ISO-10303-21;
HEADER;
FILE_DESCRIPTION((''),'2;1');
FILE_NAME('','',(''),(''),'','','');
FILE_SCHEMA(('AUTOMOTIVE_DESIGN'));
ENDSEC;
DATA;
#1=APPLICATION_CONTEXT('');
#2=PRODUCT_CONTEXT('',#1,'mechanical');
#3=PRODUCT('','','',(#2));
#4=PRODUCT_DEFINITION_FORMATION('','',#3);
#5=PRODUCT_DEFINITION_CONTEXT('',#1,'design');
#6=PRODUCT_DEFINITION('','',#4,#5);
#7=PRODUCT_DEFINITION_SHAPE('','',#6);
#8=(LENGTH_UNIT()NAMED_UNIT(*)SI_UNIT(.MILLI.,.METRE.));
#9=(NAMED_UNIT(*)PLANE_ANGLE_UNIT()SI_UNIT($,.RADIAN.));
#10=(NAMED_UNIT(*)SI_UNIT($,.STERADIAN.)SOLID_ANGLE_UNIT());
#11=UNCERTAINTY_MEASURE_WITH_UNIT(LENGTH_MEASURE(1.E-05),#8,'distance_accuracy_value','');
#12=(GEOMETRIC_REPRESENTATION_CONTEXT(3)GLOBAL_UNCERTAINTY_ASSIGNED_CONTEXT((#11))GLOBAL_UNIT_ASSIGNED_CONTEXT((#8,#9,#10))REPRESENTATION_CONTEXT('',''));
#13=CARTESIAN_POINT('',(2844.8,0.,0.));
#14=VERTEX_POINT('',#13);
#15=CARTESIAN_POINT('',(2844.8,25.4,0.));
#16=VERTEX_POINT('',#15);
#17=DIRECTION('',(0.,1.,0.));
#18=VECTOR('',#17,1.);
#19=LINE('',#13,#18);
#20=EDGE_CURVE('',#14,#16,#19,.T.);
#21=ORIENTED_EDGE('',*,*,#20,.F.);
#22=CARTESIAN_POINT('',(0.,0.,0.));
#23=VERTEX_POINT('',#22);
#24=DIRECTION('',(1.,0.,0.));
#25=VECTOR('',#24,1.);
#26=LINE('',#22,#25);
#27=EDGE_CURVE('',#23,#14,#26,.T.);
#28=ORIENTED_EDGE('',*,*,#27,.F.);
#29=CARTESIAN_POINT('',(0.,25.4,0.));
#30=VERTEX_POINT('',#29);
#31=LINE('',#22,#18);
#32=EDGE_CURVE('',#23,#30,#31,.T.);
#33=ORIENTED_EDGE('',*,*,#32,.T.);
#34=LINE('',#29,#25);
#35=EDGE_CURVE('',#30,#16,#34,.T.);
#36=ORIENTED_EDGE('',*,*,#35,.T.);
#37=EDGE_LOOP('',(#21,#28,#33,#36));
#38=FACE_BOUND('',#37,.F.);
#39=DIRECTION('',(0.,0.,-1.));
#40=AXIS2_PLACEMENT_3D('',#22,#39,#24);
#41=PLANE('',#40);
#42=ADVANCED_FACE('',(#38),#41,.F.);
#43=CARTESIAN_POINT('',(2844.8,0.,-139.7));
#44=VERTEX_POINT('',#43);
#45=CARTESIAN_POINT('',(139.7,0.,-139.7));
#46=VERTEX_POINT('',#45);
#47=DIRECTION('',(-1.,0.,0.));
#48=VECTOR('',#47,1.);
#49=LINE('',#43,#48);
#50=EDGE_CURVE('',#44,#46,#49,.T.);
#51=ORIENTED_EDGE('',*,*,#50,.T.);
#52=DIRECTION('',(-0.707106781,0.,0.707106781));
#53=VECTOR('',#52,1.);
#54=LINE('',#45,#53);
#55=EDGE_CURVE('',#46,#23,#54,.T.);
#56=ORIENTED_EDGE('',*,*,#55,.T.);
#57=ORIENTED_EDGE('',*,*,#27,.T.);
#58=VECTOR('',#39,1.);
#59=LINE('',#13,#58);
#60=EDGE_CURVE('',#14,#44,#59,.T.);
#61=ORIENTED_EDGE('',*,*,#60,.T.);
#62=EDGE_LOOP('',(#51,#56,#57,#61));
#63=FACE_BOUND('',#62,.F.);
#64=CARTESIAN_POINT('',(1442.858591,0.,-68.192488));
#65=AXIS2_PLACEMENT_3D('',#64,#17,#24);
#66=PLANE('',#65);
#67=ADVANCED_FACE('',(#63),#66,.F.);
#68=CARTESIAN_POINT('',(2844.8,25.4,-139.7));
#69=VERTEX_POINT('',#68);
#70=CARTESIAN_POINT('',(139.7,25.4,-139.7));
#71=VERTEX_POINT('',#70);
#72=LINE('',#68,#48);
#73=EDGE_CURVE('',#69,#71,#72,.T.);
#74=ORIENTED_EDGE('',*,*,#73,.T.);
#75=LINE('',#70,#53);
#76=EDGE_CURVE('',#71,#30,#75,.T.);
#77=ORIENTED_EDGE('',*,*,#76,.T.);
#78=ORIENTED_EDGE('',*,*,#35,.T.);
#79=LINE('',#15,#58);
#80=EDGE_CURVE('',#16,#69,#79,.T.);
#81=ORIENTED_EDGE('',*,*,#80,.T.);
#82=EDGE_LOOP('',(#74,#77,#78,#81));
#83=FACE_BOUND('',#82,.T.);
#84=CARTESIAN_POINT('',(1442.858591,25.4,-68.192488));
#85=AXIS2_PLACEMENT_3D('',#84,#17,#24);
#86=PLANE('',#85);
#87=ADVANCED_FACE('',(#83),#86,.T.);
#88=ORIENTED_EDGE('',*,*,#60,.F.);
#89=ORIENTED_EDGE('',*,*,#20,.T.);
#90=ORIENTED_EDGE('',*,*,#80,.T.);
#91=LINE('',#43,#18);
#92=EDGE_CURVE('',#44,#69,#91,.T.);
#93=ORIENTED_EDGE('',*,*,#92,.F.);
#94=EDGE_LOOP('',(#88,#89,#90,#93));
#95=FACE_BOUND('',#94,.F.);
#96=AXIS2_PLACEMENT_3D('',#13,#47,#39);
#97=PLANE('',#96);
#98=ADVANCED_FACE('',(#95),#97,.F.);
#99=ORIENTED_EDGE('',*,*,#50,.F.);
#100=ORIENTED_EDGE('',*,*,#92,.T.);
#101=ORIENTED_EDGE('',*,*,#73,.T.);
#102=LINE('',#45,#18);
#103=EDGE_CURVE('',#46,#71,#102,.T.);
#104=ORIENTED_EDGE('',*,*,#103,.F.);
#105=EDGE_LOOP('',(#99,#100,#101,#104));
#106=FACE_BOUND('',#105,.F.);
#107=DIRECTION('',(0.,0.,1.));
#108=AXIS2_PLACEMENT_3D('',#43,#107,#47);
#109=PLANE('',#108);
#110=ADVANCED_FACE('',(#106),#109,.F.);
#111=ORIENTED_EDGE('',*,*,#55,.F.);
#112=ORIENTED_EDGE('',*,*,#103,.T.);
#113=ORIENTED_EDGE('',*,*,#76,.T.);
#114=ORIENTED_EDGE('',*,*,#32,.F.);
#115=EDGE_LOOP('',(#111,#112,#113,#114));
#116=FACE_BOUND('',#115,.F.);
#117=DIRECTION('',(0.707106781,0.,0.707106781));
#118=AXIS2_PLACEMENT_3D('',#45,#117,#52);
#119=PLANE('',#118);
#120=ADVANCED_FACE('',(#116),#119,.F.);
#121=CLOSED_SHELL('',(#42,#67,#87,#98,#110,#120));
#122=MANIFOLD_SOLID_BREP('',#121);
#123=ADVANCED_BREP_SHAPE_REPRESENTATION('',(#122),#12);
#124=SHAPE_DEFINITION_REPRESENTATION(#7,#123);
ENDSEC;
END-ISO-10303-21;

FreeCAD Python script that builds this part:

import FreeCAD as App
import Part
import Sketcher
from FreeCAD import Vector
Q = App.Units.Quantity

doc = App.newDocument("Part")
params = doc.addObject("Spreadsheet::Sheet", "Params")
for row, (alias, value) in enumerate([
    ("sketch1_width", "112 in"),
    ("sketch1_width2", "106.5 in"),
    ("sketch1_height", "5.5 in"),
    ("pad1_length", "1 in"),
], start=1):
    params.set(f"A{row}", alias)
    params.set(f"B{row}", "=" + value)
    params.setAlias(f"B{row}", alias)

body = doc.addObject("PartDesign::Body", "Body")

# Sketch on XZ plane
sketch1 = body.newObject("Sketcher::SketchObject", "Sketch")
sketch1.AttachmentSupport = (doc.getObject("XZ_Plane"), [""])
sketch1.MapMode = "FlatFace"
sketch1.addGeometry([
    Part.LineSegment(Vector(2845, 0, 0), Vector(2845, -140, 0)),
    Part.LineSegment(Vector(2845, -140, 0), Vector(140, -140, 0)),
    Part.LineSegment(Vector(140, -140, 0), Vector(0, 0, 0)),
    Part.LineSegment(Vector(0, 0, 0), Vector(2845, 0, 0)),
], False)
sketch1.addConstraint([
    Sketcher.Constraint("Coincident", 0, 2, 1, 1),
    Sketcher.Constraint("Coincident", 1, 2, 2, 1),
    Sketcher.Constraint("Coincident", 2, 2, 3, 1),
    Sketcher.Constraint("Coincident", 3, 2, 0, 1),
    Sketcher.Constraint("Vertical", 0),
    Sketcher.Constraint("Horizontal", 1),
    Sketcher.Constraint("Horizontal", 3),
    Sketcher.Constraint("Coincident", 2, 2, -1, 1),
    Sketcher.Constraint("DistanceX", 3, 1, 3, 2, Q("112 in")),
    Sketcher.Constraint("DistanceX", 1, 2, 1, 1, Q("106.5 in")),
    Sketcher.Constraint("DistanceY", 0, 2, 0, 1, Q("5.5 in")),
])
sketch1.setExpression("Constraints[8]", "Params.sketch1_width")
sketch1.setExpression("Constraints[9]", "Params.sketch1_width2")
sketch1.setExpression("Constraints[10]", "Params.sketch1_height")
pad1 = body.newObject("PartDesign::Pad", "Pad")
pad1.Profile = sketch1
pad1.setExpression("Length", "Params.pad1_length")
pad1.Reversed = True

doc.recompute()
